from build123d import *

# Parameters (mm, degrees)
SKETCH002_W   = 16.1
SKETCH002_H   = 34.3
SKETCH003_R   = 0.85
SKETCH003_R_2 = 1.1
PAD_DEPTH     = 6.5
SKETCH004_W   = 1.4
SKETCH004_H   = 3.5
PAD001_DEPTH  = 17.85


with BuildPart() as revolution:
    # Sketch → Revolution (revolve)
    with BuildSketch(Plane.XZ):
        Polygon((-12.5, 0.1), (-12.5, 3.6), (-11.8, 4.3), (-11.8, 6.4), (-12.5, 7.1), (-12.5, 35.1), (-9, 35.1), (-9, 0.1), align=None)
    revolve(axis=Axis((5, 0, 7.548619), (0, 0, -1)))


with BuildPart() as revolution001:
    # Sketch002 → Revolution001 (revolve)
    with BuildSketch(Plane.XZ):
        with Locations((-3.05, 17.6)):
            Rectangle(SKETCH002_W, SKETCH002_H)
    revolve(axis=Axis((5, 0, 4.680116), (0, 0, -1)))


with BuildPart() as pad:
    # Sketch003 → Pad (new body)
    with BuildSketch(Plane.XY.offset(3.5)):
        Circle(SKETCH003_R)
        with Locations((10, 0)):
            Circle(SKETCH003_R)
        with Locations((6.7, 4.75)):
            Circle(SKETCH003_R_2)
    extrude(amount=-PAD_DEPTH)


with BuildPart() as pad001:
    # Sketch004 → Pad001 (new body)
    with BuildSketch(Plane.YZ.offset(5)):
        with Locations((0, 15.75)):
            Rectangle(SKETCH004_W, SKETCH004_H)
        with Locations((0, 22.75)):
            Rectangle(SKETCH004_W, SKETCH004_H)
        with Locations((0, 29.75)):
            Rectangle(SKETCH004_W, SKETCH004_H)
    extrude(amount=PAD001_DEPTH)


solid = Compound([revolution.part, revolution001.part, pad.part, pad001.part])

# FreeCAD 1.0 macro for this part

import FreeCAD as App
import Part
import Sketcher
from FreeCAD import Vector


def add_polygon(sketch, points):
    """Adds a closed chain of lines whose ends are joined by coincident constraints."""
    first, n = sketch.GeometryCount, len(points)
    for a, b in zip(points, points[1:] + points[:1]):
        sketch.addGeometry(Part.LineSegment(App.Vector(*a, 0), App.Vector(*b, 0)), False)
    for i in range(n):
        sketch.addConstraint(Sketcher.Constraint("Coincident", first + i, 2, first + (i + 1) % n, 1))

doc = App.newDocument("Part")
body = doc.addObject("PartDesign::Body", "Body")

# Sketch on XZ plane
sketch1 = body.newObject("Sketcher::SketchObject", "Sketch")
sketch1.AttachmentSupport = (doc.getObject("XZ_Plane"), [""])
sketch1.MapMode = "FlatFace"
add_polygon(sketch1, [(-12.5, 3.6), (-12.5, 0.1), (-9, 0.1), (-9, 35.1), (-12.5, 35.1), (-12.5, 7.1), (-11.8, 6.4), (-11.8, 4.3)])  # lines 0-7
sketch1.addGeometry(Part.LineSegment(Vector(5, 35.1, 0), Vector(5, 0.1, 0)), True)  # axis
sketch1.addConstraint([
    Sketcher.Constraint("Vertical", 0),
    Sketcher.Constraint("Horizontal", 1),
    Sketcher.Constraint("Vertical", 2),
    Sketcher.Constraint("Horizontal", 3),
    Sketcher.Constraint("Vertical", 4),
    Sketcher.Constraint("Vertical", 6),
    Sketcher.Constraint("Vertical", 8),
    Sketcher.Constraint("Perpendicular", 5, 7),
    Sketcher.Constraint("Horizontal", 3, 2, 8, 1),
    Sketcher.Constraint("Horizontal", 1, 2, 8, 2),
    Sketcher.Constraint("Vertical", 0, 2, 3, 2),
    Sketcher.Constraint("Equal", 3, 0),
    Sketcher.Constraint("Equal", 5, 7),
    Sketcher.Constraint("DistanceY", 2, 1, 2, 2, 35.0),
    Sketcher.Constraint("DistanceY", 4, 2, 4, 1, 28.0),
    Sketcher.Constraint("DistanceX", 1, 1, 1, 2, 3.5),
    Sketcher.Constraint("DistanceY", 6, 2, 6, 1, 2.1),
    Sketcher.Constraint("DistanceX", 1, 2, -1, 1, 9.0),
    Sketcher.Constraint("DistanceX", -1, 1, 8, 1, 5.0),
    Sketcher.Constraint("DistanceY", -1, 1, 0, 2, 0.1),
])
revolution = body.newObject("PartDesign::Revolution", "Revolution")
revolution.Profile = sketch1
revolution.ReferenceAxis = (sketch1, ["Axis0"])
revolution.Angle = 360
body2 = doc.addObject("PartDesign::Body", "Body001")

# Sketch on XZ plane
sketch2 = body2.newObject("Sketcher::SketchObject", "Sketch001")
sketch2.AttachmentSupport = (doc.getObject("XZ_Plane001"), [""])
sketch2.MapMode = "FlatFace"
add_polygon(sketch2, [(-11.1, 34.75), (-11.1, 0.45), (5, 0.45), (5, 34.75)])  # lines 0-3
sketch2.addGeometry(Part.LineSegment(Vector(5, 34.75, 0), Vector(5, 0.45, 0)), True)  # axis
sketch2.addConstraint([
    Sketcher.Constraint("Vertical", 0),
    Sketcher.Constraint("Horizontal", 1),
    Sketcher.Constraint("Vertical", 2),
    Sketcher.Constraint("Horizontal", 3),
    Sketcher.Constraint("Vertical", 4),
    Sketcher.Constraint("Coincident", 4, 1, 2, 2),
    Sketcher.Constraint("Horizontal", 0, 2, 4, 2),
    Sketcher.Constraint("DistanceX", 1, 1, 1, 2, 16.1),
    Sketcher.Constraint("DistanceY", 0, 2, 0, 1, 34.3),
    Sketcher.Constraint("DistanceX", -1, 1, 1, 2, 5.0),
    Sketcher.Constraint("DistanceY", -1, 1, 0, 2, 0.45),
])
revolution2 = body2.newObject("PartDesign::Revolution", "Revolution001")
revolution2.Profile = sketch2
revolution2.ReferenceAxis = (sketch2, ["Axis0"])
revolution2.Angle = 360
body3 = doc.addObject("PartDesign::Body", "Body002")
body3.AllowCompound = True

# Sketch on XY plane
sketch3 = body3.newObject("Sketcher::SketchObject", "Sketch002")
sketch3.AttachmentSupport = (doc.getObject("XY_Plane002"), [""])
sketch3.MapMode = "FlatFace"
sketch3.AttachmentOffset = App.Placement(Vector(0, 0, 3.5), App.Rotation())
sketch3.addGeometry([
    Part.Circle(Vector(0, 0, 0), Vector(0, 0, 1), 0.85),
    Part.Circle(Vector(10, 0, 0), Vector(0, 0, 1), 0.85),
    Part.Circle(Vector(6.7, 4.75, 0), Vector(0, 0, 1), 1.1),
], False)
sketch3.addConstraint([
    Sketcher.Constraint("Coincident", 0, 3, -1, 1),
    Sketcher.Constraint("Equal", 0, 1),
    Sketcher.Constraint("PointOnObject", 1, 3, -1),
    Sketcher.Constraint("Diameter", 0, 1.7),
    Sketcher.Constraint("Diameter", 2, 2.2),
    Sketcher.Constraint("DistanceX", -1, 1, 1, 3, 10.0),
    Sketcher.Constraint("DistanceX", -1, 1, 2, 3, 6.7),
    Sketcher.Constraint("DistanceY", -1, 1, 2, 3, 4.75),
])
pad1 = body3.newObject("PartDesign::Pad", "Pad")
pad1.Profile = sketch3
pad1.Length = 6.5
pad1.Reversed = True
body4 = doc.addObject("PartDesign::Body", "Body003")
body4.AllowCompound = True

# Sketch on YZ plane
sketch4 = body4.newObject("Sketcher::SketchObject", "Sketch003")
sketch4.AttachmentSupport = (doc.getObject("YZ_Plane003"), [""])
sketch4.MapMode = "FlatFace"
sketch4.AttachmentOffset = App.Placement(Vector(0, 0, 5), App.Rotation())
add_polygon(sketch4, [(-0.7, 17.5), (-0.7, 14), (0.7, 14), (0.7, 17.5)])  # lines 0-3
add_polygon(sketch4, [(-0.7, 24.5), (-0.7, 21), (0.7, 21), (0.7, 24.5)])  # lines 4-7
add_polygon(sketch4, [(-0.7, 31.5), (-0.7, 28), (0.7, 28), (0.7, 31.5)])  # lines 8-11
sketch4.addConstraint([
    Sketcher.Constraint("Vertical", 0),
    Sketcher.Constraint("Horizontal", 1),
    Sketcher.Constraint("Vertical", 2),
    Sketcher.Constraint("Horizontal", 3),
    Sketcher.Constraint("Vertical", 4),
    Sketcher.Constraint("Horizontal", 5),
    Sketcher.Constraint("Vertical", 6),
    Sketcher.Constraint("Horizontal", 7),
    Sketcher.Constraint("Vertical", 8),
    Sketcher.Constraint("Horizontal", 9),
    Sketcher.Constraint("Vertical", 10),
    Sketcher.Constraint("Horizontal", 11),
    Sketcher.Constraint("Vertical", 3, 2, 4, 2),
    Sketcher.Constraint("Vertical", 2, 2, 5, 2),
    Sketcher.Constraint("Vertical", 7, 2, 8, 2),
    Sketcher.Constraint("Vertical", 6, 2, 9, 2),
    Sketcher.Constraint("Equal", 2, 4),
    Sketcher.Constraint("Equal", 6, 8),
    Sketcher.Constraint("DistanceX", 1, 1, 1, 2, 1.4),
    Sketcher.Constraint("DistanceY", 0, 2, 0, 1, 3.5),
    Sketcher.Constraint("DistanceY", -1, 1, 0, 2, 14.0),
    Sketcher.Constraint("DistanceY", -1, 1, 4, 2, 21.0),
    Sketcher.Constraint("DistanceY", -1, 1, 8, 2, 28.0),
    Sketcher.Constraint("DistanceX", 0, 2, -1, 1, 0.7),
])
pad2 = body4.newObject("PartDesign::Pad", "Pad001")
pad2.Profile = sketch4
pad2.Length = 17.85

doc.recompute()
